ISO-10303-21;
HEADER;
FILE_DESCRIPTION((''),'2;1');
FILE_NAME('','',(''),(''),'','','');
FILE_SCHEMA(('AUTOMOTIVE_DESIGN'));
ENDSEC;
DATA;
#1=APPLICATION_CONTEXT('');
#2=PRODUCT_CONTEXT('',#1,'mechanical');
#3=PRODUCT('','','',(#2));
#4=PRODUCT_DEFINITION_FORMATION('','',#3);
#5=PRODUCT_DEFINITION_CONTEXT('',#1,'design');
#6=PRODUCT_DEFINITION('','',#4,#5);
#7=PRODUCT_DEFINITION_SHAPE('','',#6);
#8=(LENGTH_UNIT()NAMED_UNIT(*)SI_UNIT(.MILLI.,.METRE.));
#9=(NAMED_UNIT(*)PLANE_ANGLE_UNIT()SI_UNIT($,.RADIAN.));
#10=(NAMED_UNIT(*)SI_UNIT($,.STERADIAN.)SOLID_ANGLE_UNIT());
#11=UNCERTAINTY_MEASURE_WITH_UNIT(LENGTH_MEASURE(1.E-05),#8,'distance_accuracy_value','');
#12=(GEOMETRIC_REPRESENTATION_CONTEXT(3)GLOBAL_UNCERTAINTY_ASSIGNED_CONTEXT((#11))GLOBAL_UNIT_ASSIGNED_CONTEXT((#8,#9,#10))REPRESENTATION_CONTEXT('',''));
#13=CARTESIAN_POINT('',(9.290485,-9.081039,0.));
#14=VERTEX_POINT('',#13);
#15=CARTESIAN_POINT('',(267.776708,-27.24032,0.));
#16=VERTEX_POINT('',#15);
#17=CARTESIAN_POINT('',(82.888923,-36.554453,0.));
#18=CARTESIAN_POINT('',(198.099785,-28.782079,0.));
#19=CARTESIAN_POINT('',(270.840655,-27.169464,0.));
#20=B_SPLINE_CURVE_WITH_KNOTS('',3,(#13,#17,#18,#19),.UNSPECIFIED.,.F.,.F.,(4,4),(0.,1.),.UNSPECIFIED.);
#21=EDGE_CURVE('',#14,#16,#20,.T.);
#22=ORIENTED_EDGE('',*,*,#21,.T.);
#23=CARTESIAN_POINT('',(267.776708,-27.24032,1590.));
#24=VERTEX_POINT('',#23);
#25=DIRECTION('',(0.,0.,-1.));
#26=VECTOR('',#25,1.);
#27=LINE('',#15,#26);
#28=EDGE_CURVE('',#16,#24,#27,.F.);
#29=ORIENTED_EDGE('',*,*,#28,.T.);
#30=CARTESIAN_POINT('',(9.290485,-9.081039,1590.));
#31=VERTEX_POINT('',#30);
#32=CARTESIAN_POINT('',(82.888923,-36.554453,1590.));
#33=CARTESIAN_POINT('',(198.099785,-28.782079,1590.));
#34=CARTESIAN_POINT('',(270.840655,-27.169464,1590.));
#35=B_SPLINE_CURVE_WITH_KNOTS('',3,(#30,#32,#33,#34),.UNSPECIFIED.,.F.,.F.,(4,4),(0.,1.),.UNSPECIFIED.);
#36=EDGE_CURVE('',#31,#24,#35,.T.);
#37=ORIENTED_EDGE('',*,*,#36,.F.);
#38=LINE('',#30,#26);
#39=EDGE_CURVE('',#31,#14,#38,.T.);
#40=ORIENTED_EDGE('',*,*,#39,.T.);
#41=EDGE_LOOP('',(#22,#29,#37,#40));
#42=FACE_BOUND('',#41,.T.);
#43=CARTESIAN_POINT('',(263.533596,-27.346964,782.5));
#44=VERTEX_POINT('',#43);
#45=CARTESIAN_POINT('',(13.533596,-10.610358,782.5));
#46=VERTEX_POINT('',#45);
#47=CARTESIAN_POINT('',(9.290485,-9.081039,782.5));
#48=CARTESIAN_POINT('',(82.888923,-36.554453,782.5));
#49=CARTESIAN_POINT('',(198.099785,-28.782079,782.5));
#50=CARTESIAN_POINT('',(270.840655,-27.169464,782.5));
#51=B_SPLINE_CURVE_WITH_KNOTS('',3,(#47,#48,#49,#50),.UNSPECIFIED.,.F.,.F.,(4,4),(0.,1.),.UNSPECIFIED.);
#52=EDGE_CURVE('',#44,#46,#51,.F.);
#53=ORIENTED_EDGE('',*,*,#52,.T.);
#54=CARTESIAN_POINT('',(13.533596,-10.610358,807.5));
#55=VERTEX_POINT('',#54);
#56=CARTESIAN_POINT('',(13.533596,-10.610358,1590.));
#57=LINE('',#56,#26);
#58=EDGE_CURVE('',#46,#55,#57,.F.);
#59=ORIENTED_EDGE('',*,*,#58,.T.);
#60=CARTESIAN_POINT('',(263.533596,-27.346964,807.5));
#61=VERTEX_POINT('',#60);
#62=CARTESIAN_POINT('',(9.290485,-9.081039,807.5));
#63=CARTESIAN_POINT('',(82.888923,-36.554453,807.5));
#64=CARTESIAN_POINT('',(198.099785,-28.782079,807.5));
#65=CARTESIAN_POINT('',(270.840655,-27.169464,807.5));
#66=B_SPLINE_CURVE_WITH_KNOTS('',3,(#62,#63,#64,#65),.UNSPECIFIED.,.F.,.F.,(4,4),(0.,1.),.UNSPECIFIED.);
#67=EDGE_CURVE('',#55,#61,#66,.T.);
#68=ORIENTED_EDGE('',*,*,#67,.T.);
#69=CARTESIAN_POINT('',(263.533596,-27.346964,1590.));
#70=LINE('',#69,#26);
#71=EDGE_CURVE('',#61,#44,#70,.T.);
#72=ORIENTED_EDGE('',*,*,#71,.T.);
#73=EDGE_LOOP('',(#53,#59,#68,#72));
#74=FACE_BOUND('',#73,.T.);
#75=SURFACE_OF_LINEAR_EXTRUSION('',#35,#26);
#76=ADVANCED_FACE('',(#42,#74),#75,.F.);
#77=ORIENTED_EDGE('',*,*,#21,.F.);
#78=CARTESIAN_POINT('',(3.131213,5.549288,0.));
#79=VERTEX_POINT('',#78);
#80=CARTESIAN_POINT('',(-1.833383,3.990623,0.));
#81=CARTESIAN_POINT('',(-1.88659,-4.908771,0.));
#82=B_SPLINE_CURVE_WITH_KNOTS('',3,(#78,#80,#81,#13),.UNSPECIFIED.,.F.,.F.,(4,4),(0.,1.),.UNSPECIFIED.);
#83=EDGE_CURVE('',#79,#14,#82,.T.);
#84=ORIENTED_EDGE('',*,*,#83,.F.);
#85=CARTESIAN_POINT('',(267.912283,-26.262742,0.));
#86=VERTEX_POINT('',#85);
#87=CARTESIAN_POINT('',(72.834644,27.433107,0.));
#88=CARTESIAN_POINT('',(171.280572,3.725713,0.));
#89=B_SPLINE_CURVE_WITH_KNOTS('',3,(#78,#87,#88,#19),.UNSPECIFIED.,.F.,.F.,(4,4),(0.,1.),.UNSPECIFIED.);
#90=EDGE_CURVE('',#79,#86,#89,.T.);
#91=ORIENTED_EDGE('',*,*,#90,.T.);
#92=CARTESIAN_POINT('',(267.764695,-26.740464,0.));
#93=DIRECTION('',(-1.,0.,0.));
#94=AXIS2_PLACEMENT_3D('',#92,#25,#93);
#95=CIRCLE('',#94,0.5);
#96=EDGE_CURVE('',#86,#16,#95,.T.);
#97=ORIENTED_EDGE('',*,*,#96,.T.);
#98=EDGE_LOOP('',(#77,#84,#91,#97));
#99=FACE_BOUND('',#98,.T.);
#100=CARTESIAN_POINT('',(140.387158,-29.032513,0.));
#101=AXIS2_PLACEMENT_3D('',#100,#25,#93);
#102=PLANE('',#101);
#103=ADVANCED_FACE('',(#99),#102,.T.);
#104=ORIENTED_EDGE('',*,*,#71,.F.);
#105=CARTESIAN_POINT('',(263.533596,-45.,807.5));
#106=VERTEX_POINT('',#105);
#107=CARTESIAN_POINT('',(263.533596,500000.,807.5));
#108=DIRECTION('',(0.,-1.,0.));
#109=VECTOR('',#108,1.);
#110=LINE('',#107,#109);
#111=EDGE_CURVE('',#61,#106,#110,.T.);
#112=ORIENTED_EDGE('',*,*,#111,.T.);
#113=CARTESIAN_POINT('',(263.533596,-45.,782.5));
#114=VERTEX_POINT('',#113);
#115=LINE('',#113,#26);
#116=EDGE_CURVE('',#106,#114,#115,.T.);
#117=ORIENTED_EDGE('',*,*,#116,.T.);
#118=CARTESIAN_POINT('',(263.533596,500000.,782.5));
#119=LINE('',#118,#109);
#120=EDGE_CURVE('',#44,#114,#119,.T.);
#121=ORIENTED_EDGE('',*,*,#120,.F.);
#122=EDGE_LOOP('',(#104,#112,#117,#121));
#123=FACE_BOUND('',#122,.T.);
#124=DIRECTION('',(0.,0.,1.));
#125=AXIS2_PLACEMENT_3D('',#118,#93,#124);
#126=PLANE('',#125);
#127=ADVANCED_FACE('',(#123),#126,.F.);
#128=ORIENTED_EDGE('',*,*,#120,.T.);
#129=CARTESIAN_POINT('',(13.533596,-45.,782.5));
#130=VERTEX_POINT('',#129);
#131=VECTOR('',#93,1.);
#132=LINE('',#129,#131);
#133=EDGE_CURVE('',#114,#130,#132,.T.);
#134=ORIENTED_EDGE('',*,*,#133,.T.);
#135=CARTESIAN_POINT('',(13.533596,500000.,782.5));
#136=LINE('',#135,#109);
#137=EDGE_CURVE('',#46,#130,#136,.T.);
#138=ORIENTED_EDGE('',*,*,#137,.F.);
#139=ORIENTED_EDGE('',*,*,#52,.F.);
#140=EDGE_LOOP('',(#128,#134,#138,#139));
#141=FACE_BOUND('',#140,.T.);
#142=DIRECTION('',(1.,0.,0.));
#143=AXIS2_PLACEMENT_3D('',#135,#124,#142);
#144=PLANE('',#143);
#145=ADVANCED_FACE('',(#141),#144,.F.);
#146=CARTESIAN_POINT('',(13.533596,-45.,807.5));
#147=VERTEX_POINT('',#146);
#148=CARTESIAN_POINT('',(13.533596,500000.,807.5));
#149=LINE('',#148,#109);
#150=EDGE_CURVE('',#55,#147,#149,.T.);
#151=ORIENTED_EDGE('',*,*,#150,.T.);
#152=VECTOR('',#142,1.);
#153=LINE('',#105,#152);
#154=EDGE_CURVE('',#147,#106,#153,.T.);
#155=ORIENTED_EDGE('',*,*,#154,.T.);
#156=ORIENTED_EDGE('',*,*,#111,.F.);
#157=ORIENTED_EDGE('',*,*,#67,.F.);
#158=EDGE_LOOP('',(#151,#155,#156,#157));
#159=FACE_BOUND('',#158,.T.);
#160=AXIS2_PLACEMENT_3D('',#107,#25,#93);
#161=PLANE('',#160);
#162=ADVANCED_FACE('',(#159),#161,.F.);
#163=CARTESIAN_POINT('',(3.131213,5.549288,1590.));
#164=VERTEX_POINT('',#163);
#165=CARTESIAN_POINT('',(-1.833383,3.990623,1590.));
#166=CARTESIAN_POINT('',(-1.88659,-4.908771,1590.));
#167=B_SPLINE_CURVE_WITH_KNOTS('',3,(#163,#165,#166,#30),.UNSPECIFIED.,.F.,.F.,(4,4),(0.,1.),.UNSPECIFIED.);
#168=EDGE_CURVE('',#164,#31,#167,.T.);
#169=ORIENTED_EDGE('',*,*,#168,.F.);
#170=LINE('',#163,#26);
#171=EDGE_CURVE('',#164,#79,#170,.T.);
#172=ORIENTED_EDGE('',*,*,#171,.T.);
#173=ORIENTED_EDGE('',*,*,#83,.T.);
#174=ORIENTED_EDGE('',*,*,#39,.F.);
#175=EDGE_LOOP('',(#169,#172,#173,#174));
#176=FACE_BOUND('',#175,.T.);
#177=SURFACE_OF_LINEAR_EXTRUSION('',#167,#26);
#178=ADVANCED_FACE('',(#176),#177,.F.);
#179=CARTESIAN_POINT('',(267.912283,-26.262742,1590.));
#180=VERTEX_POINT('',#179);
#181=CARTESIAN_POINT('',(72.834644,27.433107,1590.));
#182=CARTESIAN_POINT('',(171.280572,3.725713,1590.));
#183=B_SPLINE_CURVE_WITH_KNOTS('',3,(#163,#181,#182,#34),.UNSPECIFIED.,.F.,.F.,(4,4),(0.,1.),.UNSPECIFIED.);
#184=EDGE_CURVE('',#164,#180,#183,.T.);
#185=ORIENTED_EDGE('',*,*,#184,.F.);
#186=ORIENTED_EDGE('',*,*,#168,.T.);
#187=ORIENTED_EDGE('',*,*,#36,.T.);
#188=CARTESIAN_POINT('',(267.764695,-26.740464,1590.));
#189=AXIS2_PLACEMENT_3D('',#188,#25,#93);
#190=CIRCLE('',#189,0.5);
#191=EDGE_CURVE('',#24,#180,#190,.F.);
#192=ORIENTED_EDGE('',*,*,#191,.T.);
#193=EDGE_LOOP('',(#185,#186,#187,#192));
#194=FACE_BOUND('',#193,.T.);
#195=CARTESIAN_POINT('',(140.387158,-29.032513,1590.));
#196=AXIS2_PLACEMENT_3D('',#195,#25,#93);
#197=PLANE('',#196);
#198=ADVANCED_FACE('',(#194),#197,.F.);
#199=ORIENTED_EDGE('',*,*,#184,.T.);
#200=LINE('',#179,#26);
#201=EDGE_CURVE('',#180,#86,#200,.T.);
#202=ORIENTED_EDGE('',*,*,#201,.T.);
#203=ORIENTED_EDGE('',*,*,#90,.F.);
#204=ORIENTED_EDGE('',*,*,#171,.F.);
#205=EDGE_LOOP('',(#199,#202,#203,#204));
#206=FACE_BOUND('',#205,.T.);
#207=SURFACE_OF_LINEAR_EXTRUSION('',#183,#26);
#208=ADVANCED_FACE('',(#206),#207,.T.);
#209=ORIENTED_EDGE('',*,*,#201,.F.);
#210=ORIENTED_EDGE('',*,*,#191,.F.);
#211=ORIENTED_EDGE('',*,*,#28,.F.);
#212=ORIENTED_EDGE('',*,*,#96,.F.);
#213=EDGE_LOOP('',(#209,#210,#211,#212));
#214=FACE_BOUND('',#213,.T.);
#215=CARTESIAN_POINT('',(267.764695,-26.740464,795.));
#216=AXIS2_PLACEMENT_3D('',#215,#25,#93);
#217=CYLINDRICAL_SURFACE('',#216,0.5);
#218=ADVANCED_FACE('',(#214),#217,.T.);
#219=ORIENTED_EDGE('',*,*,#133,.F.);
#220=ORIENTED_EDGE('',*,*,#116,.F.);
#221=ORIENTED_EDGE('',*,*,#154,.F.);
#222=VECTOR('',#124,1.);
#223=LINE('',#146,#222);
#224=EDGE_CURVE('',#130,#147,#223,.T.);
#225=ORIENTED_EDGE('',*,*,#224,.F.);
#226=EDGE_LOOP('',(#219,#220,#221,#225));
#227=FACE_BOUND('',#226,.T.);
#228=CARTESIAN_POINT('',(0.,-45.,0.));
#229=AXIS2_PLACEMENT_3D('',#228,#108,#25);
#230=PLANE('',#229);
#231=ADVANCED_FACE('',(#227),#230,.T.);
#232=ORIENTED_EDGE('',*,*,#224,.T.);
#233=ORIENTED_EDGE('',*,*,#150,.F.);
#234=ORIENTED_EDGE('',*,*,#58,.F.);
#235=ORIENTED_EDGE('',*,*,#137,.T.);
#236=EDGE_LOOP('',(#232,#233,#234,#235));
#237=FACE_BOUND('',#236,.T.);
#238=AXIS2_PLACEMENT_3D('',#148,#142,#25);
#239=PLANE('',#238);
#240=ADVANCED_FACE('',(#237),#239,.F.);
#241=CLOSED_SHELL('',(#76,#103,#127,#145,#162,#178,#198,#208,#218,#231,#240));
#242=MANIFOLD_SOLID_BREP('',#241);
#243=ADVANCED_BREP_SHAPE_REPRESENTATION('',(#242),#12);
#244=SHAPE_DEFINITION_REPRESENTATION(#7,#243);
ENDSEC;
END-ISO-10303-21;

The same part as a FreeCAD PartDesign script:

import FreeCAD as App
import Part
import Sketcher
Q = App.Units.Quantity


def edges_at(feature, points):
    """Names of the edges that pass closest to the given points."""
    edges = feature.Shape.Edges
    near = lambda p: min(range(len(edges)), key=lambda i: edges[i].distToShape(Part.Vertex(*p))[0])
    return sorted({f"Edge{near(p) + 1}" for p in points})

doc = App.newDocument("Part")
body = doc.addObject("PartDesign::Body", "Body")

# Sketch on XY plane
sketch1 = body.newObject("Sketcher::SketchObject", "Sketch")
sketch1.AttachmentSupport = (doc.getObject("XY_Plane"), [""])
sketch1.MapMode = "FlatFace"
sketch1.addGeometry(Part.BSplineCurve([App.Vector(3.131213, 5.549288, 0), App.Vector(72.834644, 27.433107, 0), App.Vector(171.280572, 3.725713, 0), App.Vector(270.840655, -27.169464, 0)], [4, 4], [0, 1], False, 3, [1, 1, 1, 1], False), False)
sketch1.addGeometry(Part.BSplineCurve([App.Vector(3.131213, 5.549288, 0), App.Vector(-1.833383, 3.990623, 0), App.Vector(-1.88659, -4.908771, 0), App.Vector(9.290485, -9.081039, 0)], [4, 4], [0, 1], False, 3, [1, 1, 1, 1], False), False)
sketch1.addGeometry(Part.BSplineCurve([App.Vector(9.290485, -9.081039, 0), App.Vector(82.888923, -36.554453, 0), App.Vector(198.099785, -28.782079, 0), App.Vector(270.840655, -27.169464, 0)], [4, 4], [0, 1], False, 3, [1, 1, 1, 1], False), False)
sketch1.addConstraint(Sketcher.Constraint("Block", 0))
sketch1.addConstraint(Sketcher.Constraint("Block", 1))
sketch1.addConstraint(Sketcher.Constraint("Block", 2))
pad1 = body.newObject("PartDesign::Pad", "Pad")
pad1.Profile = sketch1
pad1.Length = 1590
doc.recompute()

fillet = body.newObject("PartDesign::Fillet", "Fillet")
fillet.Base = (pad1, edges_at(pad1, [(270.841, -27.169, 795)]))
fillet.Radius = 0.5

# Sketch on XZ plane
sketch2 = body.newObject("Sketcher::SketchObject", "Sketch001")
sketch2.AttachmentSupport = (doc.getObject("XZ_Plane"), [""])
sketch2.MapMode = "FlatFace"
sketch2.AttachmentOffset = App.Placement(App.Vector(0, 0, 45), App.Rotation())
sketch2.addGeometry(Part.LineSegment(App.Vector(14, 782, 0), App.Vector(14, 808, 0)), False)
sketch2.addGeometry(Part.LineSegment(App.Vector(14, 808, 0), App.Vector(264, 808, 0)), False)
sketch2.addGeometry(Part.LineSegment(App.Vector(264, 808, 0), App.Vector(264, 782, 0)), False)
sketch2.addGeometry(Part.LineSegment(App.Vector(264, 782, 0), App.Vector(14, 782, 0)), False)
sketch2.addConstraint(Sketcher.Constraint("Coincident", 0, 2, 1, 1))
sketch2.addConstraint(Sketcher.Constraint("Coincident", 1, 2, 2, 1))
sketch2.addConstraint(Sketcher.Constraint("Coincident", 2, 2, 3, 1))
sketch2.addConstraint(Sketcher.Constraint("Coincident", 3, 2, 0, 1))
sketch2.addConstraint(Sketcher.Constraint("Vertical", 0))
sketch2.addConstraint(Sketcher.Constraint("Horizontal", 1))
sketch2.addConstraint(Sketcher.Constraint("Vertical", 2))
sketch2.addConstraint(Sketcher.Constraint("Horizontal", 3))
sketch2.addConstraint(Sketcher.Constraint("DistanceX", 1, 1, 1, 2, Q("250 mm")))
sketch2.addConstraint(Sketcher.Constraint("DistanceY", 0, 1, 0, 2, Q("25 mm")))
sketch2.addConstraint(Sketcher.Constraint("DistanceY", -1, 1, 0, 2, Q("807.5 mm")))
sketch2.addConstraint(Sketcher.Constraint("DistanceX", -1, 1, 0, 2, Q("13.533596 mm")))
pad2 = body.newObject("PartDesign::Pad", "Pad001")
pad2.Profile = sketch2
pad2.Type = "UpToFirst"
pad2.Reversed = True

doc.recompute()
